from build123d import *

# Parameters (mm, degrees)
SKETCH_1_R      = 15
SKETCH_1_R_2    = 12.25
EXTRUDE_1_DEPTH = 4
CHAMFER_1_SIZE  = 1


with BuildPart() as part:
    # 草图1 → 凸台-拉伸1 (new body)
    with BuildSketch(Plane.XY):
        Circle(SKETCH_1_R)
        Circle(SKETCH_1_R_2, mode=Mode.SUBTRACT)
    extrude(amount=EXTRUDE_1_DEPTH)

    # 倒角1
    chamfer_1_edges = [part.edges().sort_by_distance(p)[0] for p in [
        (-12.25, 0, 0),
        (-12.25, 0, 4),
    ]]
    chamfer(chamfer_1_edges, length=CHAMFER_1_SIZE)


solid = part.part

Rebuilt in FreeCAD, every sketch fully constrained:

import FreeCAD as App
import Part
import Sketcher
Q = App.Units.Quantity


def edges_at(feature, points):
    """Names of the edges that pass closest to the given points."""
    edges = feature.Shape.Edges
    near = lambda p: min(range(len(edges)), key=lambda i: edges[i].distToShape(Part.Vertex(*p))[0])
    return sorted({f"Edge{near(p) + 1}" for p in points})

doc = App.newDocument("Part")
body = doc.addObject("PartDesign::Body", "Body")

sketch1 = doc.addObject("Sketcher::SketchObject", "Sketch")
body.addObject(sketch1)
sketch1.AttachmentSupport = (doc.XY_Plane, [""])
sketch1.MapMode = "FlatFace"
sketch1.addGeometry([
    Part.Circle(App.Vector(0, 0, 0), App.Vector(0, 0, 1), 15),
    Part.Circle(App.Vector(0, 0, 0), App.Vector(0, 0, 1), 12),
], False)
sketch1.addConstraint([
    Sketcher.Constraint("Coincident", 0, 3, -1, 1),
    Sketcher.Constraint("Coincident", 1, 3, -1, 1),
    Sketcher.Constraint("Diameter", 0, Q("30 mm")),
    Sketcher.Constraint("Diameter", 1, Q("24.5 mm")),
])
pad1 = doc.addObject("PartDesign::Pad", "Pad")
body.addObject(pad1)
pad1.Profile = sketch1
pad1.Length = 4
doc.recompute()

chamfer = doc.addObject("PartDesign::Chamfer", "Chamfer")
body.addObject(chamfer)
chamfer.Base = (pad1, edges_at(pad1, [(-12.25, 0, 0), (-12.25, 0, 4)]))
chamfer.Size = 1

doc.recompute()
